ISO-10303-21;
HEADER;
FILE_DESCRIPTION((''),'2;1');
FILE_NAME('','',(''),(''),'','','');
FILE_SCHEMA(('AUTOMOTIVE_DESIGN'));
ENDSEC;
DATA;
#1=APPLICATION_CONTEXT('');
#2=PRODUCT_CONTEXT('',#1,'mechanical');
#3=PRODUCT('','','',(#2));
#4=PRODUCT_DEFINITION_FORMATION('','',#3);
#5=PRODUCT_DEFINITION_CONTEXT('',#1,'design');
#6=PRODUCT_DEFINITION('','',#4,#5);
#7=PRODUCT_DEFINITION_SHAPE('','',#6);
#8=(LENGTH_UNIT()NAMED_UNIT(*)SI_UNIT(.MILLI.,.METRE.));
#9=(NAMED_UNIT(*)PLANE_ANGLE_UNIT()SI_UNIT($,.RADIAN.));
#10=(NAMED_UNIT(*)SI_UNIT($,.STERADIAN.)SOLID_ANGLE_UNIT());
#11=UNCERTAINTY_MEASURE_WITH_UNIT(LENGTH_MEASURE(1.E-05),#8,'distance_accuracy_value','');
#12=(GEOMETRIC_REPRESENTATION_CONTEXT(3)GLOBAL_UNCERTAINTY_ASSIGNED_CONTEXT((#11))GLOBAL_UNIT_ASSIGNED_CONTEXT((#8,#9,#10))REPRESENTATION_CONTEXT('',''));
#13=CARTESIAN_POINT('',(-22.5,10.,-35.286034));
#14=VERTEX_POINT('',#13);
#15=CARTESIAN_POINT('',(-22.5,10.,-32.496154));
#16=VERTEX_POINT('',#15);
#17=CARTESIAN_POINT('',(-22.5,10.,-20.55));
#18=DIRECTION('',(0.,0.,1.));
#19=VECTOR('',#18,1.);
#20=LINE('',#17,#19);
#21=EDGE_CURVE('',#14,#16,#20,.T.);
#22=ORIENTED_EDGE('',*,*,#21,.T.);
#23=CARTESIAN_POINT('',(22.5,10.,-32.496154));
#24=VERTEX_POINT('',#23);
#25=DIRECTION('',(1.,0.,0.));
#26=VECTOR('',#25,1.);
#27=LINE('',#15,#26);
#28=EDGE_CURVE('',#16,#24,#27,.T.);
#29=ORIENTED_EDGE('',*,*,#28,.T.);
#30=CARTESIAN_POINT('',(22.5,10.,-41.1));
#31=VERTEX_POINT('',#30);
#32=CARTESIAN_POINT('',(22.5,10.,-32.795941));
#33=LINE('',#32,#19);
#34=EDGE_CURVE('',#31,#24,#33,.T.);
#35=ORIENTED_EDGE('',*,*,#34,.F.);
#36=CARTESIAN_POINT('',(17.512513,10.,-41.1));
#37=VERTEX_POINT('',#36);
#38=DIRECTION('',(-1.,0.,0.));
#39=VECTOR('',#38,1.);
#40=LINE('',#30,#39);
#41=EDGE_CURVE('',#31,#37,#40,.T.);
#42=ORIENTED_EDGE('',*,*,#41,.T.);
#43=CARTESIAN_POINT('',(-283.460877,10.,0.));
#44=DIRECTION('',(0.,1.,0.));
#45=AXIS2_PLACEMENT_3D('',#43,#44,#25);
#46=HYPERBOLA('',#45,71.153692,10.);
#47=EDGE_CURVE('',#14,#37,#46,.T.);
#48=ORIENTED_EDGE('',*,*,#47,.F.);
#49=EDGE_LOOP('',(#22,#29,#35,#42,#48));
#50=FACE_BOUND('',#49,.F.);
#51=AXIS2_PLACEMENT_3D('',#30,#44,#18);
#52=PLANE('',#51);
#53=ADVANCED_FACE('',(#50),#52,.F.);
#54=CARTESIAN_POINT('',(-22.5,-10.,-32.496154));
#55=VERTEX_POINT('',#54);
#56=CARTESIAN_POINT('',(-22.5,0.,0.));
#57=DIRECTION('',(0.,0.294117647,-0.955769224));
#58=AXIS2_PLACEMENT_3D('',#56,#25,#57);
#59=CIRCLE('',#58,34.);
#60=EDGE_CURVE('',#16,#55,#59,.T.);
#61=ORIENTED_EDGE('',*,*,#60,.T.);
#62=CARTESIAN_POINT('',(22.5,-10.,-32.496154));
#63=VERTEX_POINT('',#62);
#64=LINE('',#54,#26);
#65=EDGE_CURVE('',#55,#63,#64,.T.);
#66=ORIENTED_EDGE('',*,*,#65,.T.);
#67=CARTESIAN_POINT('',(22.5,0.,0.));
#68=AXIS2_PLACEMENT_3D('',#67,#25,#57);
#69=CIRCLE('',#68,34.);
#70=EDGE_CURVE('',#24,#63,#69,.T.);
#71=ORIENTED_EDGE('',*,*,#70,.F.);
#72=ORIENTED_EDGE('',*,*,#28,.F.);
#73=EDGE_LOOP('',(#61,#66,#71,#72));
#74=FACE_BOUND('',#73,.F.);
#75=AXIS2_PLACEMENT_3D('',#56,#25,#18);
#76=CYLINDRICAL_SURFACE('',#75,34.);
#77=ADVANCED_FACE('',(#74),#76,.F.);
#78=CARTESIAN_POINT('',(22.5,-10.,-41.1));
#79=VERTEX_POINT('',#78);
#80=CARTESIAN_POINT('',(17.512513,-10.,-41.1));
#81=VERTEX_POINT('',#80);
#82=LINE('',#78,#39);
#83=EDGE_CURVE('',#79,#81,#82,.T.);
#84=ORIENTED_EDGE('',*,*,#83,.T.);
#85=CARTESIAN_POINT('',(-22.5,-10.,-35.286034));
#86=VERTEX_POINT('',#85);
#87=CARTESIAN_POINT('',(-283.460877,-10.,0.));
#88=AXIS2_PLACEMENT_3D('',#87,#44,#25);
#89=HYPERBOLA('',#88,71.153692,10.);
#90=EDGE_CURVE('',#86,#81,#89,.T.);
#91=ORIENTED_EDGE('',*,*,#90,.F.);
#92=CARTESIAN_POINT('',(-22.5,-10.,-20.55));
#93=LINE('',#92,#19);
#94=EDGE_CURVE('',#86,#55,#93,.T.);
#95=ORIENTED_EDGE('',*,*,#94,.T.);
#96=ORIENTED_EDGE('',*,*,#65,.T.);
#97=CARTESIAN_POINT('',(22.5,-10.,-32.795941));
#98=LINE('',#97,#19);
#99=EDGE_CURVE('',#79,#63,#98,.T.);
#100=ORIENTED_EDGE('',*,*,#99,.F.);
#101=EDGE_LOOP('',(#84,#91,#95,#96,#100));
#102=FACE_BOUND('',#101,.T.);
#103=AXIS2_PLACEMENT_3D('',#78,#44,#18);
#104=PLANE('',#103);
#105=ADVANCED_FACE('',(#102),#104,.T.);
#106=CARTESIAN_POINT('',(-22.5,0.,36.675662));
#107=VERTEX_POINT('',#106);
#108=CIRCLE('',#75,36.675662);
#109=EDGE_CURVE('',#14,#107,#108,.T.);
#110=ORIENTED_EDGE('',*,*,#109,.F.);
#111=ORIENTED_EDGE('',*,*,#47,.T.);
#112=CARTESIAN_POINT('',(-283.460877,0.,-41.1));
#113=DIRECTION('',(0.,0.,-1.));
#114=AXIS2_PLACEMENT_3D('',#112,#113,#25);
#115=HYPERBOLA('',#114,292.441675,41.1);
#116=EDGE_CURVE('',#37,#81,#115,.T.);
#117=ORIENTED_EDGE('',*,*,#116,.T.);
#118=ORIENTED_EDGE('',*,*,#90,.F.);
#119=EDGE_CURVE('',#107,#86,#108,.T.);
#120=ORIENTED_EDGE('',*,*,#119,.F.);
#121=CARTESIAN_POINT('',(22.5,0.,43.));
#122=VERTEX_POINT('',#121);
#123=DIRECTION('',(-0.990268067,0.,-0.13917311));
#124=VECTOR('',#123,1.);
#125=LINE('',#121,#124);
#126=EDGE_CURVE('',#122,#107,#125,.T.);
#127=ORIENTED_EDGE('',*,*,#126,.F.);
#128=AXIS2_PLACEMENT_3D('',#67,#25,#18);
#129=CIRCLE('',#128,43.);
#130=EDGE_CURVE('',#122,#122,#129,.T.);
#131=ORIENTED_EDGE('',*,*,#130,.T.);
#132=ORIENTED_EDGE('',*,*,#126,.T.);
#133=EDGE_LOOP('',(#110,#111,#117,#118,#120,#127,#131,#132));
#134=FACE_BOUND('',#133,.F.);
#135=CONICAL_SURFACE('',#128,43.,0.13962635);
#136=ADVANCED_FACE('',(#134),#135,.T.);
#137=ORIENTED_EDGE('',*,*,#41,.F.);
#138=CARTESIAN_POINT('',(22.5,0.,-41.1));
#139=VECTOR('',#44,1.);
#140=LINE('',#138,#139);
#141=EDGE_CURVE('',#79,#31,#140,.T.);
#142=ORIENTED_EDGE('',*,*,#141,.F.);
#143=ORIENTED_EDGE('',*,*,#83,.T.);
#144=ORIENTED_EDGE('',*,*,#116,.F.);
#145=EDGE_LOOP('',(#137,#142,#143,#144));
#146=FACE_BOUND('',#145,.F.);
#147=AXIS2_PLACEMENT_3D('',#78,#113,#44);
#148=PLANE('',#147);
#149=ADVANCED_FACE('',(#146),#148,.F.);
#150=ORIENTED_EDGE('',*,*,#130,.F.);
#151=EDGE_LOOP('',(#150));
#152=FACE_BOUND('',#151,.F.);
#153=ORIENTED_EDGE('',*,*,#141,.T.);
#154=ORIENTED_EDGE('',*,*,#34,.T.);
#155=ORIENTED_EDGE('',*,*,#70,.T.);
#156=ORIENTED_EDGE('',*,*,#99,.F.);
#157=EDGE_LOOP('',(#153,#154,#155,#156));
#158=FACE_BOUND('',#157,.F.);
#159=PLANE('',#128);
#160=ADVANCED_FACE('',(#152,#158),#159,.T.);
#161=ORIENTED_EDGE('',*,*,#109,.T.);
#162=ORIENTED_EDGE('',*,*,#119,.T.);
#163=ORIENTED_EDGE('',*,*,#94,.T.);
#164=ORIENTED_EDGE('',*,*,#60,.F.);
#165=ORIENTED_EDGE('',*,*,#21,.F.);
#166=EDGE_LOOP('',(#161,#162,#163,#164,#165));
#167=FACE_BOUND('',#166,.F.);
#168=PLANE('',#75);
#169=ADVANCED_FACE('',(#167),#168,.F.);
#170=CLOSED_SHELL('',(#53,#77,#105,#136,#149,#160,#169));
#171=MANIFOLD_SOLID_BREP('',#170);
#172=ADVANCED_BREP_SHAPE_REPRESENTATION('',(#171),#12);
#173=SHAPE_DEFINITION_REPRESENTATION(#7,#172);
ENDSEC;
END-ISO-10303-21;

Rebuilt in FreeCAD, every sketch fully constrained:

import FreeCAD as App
import Part
import Sketcher

V = App.Vector
Q = App.Units.Quantity


def add_polygon(sketch, points):
    """Adds a closed chain of lines whose ends are joined by coincident constraints."""
    first, n = sketch.GeometryCount, len(points)
    for a, b in zip(points, points[1:] + points[:1]):
        sketch.addGeometry(Part.LineSegment(App.Vector(*a, 0), App.Vector(*b, 0)), False)
    for i in range(n):
        sketch.addConstraint(Sketcher.Constraint("Coincident", first + i, 2, first + (i + 1) % n, 1))

doc = App.newDocument("Part")
params = doc.addObject("Spreadsheet::Sheet", "Params")
for row, (alias, value) in enumerate([
    ("sketch1_width", "45 mm"),
    ("sketch1_height", "9 mm"),
    ("revolution_angle", "360 deg"),
    ("sketch2_width", "20 mm"),
], start=1):
    params.set(f"A{row}", alias)
    params.set(f"B{row}", "=" + value)
    params.setAlias(f"B{row}", alias)

body = doc.addObject("PartDesign::Body", "Body")

# Sketch on XZ plane
sketch1 = body.newObject("Sketcher::SketchObject", "Sketch")
sketch1.AttachmentSupport = (doc.getObject("XZ_Plane"), [""])
sketch1.MapMode = "FlatFace"
add_polygon(sketch1, [(-22.5, 36.7), (-22.5, 34), (22.5, 34), (22.5, 43)])  # lines 0-3
sketch1.addConstraint([
    Sketcher.Constraint("Vertical", 0),
    Sketcher.Constraint("Horizontal", 1),
    Sketcher.Constraint("Vertical", 2),
    Sketcher.Constraint("DistanceX", 1, 1, 1, 2, Q("45 mm")),
    Sketcher.Constraint("DistanceY", 2, 1, 2, 2, Q("9 mm")),
    Sketcher.Constraint("Angle", 3, Q("-171.999999 deg")),
    Sketcher.Constraint("DistanceY", -1, 1, 0, 2, Q("34 mm")),
    Sketcher.Constraint("DistanceX", 0, 2, -1, 1, Q("22.5 mm")),
])
sketch1.setExpression("Constraints[7]", "Params.sketch1_width")
sketch1.setExpression("Constraints[8]", "Params.sketch1_height")
revolution = body.newObject("PartDesign::Revolution", "Revolution")
revolution.Profile = sketch1
revolution.ReferenceAxis = (sketch1, ["H_Axis"])
revolution.setExpression("Angle", "Params.revolution_angle")

# Sketch on YZ plane
sketch2 = body.newObject("Sketcher::SketchObject", "Sketch001")
sketch2.AttachmentSupport = (doc.getObject("YZ_Plane"), [""])
sketch2.MapMode = "FlatFace"
sketch2.AttachmentOffset = App.Placement(V(0, 0, 22.5), App.Rotation())
add_polygon(sketch2, [(-10, -24), (-10, -41), (10, -41), (10, -24)])  # lines 0-3
sketch2.addConstraint([
    Sketcher.Constraint("Vertical", 0),
    Sketcher.Constraint("Horizontal", 1),
    Sketcher.Constraint("Vertical", 2),
    Sketcher.Constraint("Horizontal", 3),
    Sketcher.Constraint("DistanceX", 1, 1, 1, 2, Q("20 mm")),
    Sketcher.Constraint("DistanceX", 0, 2, -1, 1, Q("10 mm")),
    Sketcher.Constraint("DistanceY", 0, 2, -1, 1, Q("41.1 mm")),
    Sketcher.Constraint("DistanceY", 0, 2, 0, 1, Q("16.608118 mm")),
])
sketch2.setExpression("Constraints[8]", "Params.sketch2_width")
pocket1 = body.newObject("PartDesign::Pocket", "Pocket")
pocket1.Profile = sketch2
pocket1.Type = "ThroughAll"

doc.recompute()
